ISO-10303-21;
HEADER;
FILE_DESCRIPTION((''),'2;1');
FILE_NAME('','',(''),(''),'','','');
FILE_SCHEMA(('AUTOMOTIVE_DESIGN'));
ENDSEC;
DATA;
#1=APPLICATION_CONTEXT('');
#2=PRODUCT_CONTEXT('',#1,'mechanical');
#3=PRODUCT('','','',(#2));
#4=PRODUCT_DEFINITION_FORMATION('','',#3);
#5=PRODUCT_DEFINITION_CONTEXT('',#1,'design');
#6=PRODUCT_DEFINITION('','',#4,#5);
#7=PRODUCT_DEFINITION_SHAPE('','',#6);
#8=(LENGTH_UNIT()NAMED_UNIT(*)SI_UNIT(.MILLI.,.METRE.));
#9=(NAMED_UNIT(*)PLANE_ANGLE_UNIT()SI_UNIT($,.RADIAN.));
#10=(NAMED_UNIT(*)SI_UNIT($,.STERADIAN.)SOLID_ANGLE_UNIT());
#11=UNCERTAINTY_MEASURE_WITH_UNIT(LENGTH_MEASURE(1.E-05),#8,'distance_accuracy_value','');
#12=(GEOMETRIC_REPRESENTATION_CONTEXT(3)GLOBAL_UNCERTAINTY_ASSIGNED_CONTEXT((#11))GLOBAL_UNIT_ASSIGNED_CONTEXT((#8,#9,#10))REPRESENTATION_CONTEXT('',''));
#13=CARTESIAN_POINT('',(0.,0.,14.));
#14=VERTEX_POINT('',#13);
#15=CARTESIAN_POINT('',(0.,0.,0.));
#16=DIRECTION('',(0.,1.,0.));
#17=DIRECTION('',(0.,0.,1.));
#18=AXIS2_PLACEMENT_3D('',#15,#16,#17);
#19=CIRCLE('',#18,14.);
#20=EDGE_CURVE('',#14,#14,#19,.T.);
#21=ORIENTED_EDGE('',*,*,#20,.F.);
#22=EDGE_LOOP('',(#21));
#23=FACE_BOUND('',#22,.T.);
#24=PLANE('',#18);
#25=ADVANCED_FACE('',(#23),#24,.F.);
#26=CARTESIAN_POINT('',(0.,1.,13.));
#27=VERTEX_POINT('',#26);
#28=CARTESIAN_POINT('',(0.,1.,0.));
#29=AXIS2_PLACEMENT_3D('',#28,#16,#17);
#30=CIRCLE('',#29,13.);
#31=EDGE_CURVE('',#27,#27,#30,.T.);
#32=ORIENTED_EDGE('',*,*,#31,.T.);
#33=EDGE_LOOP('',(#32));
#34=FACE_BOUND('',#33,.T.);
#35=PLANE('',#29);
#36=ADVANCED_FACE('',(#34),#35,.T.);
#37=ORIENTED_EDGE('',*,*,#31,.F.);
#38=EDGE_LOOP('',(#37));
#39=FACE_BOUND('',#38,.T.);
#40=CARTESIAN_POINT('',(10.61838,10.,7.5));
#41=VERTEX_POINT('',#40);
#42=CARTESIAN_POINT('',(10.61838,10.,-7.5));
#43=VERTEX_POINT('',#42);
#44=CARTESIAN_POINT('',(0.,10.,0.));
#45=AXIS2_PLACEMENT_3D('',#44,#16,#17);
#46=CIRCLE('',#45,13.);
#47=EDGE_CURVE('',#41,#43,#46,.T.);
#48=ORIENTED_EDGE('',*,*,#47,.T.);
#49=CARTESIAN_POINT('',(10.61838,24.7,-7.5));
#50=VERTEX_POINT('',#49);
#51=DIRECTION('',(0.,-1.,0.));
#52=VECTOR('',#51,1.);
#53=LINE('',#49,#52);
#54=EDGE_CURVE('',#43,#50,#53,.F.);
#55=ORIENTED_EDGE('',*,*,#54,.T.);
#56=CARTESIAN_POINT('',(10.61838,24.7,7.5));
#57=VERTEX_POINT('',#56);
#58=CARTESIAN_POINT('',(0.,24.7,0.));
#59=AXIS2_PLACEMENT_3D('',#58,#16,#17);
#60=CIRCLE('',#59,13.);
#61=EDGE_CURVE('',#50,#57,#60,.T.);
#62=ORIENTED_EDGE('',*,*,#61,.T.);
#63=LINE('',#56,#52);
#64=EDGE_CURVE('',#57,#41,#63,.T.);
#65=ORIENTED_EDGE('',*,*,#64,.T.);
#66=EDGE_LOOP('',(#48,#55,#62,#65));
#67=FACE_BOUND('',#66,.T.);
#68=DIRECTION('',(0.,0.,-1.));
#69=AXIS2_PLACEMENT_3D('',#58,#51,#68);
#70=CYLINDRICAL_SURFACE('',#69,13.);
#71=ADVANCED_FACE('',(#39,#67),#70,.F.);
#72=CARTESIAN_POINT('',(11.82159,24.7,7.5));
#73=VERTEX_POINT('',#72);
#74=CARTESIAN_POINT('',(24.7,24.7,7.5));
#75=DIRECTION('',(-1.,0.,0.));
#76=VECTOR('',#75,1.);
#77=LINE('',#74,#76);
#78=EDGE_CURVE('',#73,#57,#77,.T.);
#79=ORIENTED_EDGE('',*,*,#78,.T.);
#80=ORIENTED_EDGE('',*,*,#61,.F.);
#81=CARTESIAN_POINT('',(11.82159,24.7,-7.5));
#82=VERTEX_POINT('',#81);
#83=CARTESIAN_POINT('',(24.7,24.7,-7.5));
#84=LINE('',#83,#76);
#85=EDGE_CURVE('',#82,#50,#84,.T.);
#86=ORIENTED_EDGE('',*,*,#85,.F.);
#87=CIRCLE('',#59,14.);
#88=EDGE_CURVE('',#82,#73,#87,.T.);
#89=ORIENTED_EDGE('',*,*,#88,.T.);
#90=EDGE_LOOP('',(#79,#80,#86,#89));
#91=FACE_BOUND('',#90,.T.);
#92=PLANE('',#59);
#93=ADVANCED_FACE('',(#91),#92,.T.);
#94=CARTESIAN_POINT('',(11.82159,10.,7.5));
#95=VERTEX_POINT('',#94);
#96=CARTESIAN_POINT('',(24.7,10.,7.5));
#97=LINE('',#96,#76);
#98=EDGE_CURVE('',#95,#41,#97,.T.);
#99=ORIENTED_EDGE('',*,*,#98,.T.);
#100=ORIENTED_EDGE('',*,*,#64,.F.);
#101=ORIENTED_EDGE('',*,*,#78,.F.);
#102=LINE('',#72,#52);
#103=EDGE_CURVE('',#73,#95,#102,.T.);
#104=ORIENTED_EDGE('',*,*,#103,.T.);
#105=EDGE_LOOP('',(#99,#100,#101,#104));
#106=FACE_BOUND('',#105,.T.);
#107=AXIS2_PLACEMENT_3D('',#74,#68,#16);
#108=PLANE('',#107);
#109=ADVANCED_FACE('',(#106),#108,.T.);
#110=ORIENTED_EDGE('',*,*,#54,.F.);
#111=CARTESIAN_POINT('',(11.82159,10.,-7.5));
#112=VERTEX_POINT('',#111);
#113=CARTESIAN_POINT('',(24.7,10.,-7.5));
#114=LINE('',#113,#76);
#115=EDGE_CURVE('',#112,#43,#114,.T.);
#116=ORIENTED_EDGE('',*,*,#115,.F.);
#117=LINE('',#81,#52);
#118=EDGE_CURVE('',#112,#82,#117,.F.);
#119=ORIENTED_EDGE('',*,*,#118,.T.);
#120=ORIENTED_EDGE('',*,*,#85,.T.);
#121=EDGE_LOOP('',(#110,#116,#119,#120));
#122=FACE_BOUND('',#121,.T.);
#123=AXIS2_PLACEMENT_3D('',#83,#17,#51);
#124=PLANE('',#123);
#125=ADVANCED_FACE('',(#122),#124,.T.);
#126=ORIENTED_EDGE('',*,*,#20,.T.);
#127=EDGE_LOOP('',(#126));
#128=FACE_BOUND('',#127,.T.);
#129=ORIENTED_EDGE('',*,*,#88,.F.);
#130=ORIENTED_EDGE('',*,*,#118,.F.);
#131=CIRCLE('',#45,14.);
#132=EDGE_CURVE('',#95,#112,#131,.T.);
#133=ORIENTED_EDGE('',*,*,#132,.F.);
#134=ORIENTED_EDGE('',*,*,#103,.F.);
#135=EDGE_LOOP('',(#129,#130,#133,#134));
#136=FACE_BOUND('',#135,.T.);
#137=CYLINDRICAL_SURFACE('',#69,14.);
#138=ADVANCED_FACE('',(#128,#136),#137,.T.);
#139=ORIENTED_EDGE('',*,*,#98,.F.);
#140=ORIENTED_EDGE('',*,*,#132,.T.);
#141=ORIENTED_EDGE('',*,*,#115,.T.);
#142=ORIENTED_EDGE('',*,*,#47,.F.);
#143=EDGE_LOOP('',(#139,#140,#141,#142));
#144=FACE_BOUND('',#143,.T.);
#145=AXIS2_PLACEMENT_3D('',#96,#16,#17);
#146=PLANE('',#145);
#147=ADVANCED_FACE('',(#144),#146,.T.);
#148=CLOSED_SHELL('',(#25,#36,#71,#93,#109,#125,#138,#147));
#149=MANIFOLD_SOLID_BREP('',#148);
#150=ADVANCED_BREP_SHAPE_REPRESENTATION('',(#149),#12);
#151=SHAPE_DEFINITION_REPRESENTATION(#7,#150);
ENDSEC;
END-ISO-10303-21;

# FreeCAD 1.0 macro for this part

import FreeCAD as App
import Part
import Sketcher
Q = App.Units.Quantity


def faces_at(feature, points):
    """Names of the faces that lie closest to the given points."""
    faces = feature.Shape.Faces
    near = lambda p: min(range(len(faces)), key=lambda i: faces[i].distToShape(Part.Vertex(*p))[0])
    return sorted({f"Face{near(p) + 1}" for p in points})

doc = App.newDocument("Part")
body = doc.addObject("PartDesign::Body", "Body")

# Sketch on XZ plane
sketch1 = body.newObject("Sketcher::SketchObject", "Sketch")
sketch1.AttachmentSupport = (doc.getObject("XZ_Plane"), [""])
sketch1.MapMode = "FlatFace"
sketch1.addGeometry(Part.Circle(App.Vector(0, 0, 0), App.Vector(0, 0, 1), 14), False)
sketch1.addConstraint([
    Sketcher.Constraint("Coincident", 0, 3, -1, 1),
    Sketcher.Constraint("Diameter", 0, Q("28 mm")),
])
pad1 = body.newObject("PartDesign::Pad", "Pad")
pad1.Profile = sketch1
pad1.Length = 24.7
pad1.Reversed = True
doc.recompute()

thickness = body.newObject("PartDesign::Thickness", "Thickness")
thickness.Base = (pad1, faces_at(pad1, [(0, 24.7, 0)]))
thickness.Value = 1
thickness.Reversed = True
thickness.Join = "Intersection"

# Sketch on YZ plane
sketch2 = body.newObject("Sketcher::SketchObject", "Sketch001")
sketch2.AttachmentSupport = (doc.getObject("YZ_Plane"), [""])
sketch2.MapMode = "FlatFace"
sketch2.addGeometry([
    Part.LineSegment(App.Vector(25, 8, 0), App.Vector(10, 8, 0)),
    Part.LineSegment(App.Vector(10, 8, 0), App.Vector(10, -8, 0)),
    Part.LineSegment(App.Vector(10, -8, 0), App.Vector(25, -8, 0)),
    Part.LineSegment(App.Vector(25, -8, 0), App.Vector(25, 8, 0)),
], False)
sketch2.addConstraint([
    Sketcher.Constraint("Coincident", 0, 2, 1, 1),
    Sketcher.Constraint("Coincident", 1, 2, 2, 1),
    Sketcher.Constraint("Coincident", 2, 2, 3, 1),
    Sketcher.Constraint("Coincident", 3, 2, 0, 1),
    Sketcher.Constraint("Horizontal", 0),
    Sketcher.Constraint("Vertical", 1),
    Sketcher.Constraint("Horizontal", 2),
    Sketcher.Constraint("Vertical", 3),
    Sketcher.Constraint("DistanceY", 1, 2, 1, 1, Q("15 mm")),
    Sketcher.Constraint("DistanceX", 0, 2, 0, 1, Q("14.7 mm")),
    Sketcher.Constraint("DistanceX", -1, 1, 0, 2, Q("10 mm")),
    Sketcher.Constraint("DistanceY", -1, 1, 0, 2, Q("7.5 mm")),
])
pocket1 = body.newObject("PartDesign::Pocket", "Pocket")
pocket1.Profile = sketch2
pocket1.Length = 24.7
pocket1.Reversed = True

doc.recompute()
